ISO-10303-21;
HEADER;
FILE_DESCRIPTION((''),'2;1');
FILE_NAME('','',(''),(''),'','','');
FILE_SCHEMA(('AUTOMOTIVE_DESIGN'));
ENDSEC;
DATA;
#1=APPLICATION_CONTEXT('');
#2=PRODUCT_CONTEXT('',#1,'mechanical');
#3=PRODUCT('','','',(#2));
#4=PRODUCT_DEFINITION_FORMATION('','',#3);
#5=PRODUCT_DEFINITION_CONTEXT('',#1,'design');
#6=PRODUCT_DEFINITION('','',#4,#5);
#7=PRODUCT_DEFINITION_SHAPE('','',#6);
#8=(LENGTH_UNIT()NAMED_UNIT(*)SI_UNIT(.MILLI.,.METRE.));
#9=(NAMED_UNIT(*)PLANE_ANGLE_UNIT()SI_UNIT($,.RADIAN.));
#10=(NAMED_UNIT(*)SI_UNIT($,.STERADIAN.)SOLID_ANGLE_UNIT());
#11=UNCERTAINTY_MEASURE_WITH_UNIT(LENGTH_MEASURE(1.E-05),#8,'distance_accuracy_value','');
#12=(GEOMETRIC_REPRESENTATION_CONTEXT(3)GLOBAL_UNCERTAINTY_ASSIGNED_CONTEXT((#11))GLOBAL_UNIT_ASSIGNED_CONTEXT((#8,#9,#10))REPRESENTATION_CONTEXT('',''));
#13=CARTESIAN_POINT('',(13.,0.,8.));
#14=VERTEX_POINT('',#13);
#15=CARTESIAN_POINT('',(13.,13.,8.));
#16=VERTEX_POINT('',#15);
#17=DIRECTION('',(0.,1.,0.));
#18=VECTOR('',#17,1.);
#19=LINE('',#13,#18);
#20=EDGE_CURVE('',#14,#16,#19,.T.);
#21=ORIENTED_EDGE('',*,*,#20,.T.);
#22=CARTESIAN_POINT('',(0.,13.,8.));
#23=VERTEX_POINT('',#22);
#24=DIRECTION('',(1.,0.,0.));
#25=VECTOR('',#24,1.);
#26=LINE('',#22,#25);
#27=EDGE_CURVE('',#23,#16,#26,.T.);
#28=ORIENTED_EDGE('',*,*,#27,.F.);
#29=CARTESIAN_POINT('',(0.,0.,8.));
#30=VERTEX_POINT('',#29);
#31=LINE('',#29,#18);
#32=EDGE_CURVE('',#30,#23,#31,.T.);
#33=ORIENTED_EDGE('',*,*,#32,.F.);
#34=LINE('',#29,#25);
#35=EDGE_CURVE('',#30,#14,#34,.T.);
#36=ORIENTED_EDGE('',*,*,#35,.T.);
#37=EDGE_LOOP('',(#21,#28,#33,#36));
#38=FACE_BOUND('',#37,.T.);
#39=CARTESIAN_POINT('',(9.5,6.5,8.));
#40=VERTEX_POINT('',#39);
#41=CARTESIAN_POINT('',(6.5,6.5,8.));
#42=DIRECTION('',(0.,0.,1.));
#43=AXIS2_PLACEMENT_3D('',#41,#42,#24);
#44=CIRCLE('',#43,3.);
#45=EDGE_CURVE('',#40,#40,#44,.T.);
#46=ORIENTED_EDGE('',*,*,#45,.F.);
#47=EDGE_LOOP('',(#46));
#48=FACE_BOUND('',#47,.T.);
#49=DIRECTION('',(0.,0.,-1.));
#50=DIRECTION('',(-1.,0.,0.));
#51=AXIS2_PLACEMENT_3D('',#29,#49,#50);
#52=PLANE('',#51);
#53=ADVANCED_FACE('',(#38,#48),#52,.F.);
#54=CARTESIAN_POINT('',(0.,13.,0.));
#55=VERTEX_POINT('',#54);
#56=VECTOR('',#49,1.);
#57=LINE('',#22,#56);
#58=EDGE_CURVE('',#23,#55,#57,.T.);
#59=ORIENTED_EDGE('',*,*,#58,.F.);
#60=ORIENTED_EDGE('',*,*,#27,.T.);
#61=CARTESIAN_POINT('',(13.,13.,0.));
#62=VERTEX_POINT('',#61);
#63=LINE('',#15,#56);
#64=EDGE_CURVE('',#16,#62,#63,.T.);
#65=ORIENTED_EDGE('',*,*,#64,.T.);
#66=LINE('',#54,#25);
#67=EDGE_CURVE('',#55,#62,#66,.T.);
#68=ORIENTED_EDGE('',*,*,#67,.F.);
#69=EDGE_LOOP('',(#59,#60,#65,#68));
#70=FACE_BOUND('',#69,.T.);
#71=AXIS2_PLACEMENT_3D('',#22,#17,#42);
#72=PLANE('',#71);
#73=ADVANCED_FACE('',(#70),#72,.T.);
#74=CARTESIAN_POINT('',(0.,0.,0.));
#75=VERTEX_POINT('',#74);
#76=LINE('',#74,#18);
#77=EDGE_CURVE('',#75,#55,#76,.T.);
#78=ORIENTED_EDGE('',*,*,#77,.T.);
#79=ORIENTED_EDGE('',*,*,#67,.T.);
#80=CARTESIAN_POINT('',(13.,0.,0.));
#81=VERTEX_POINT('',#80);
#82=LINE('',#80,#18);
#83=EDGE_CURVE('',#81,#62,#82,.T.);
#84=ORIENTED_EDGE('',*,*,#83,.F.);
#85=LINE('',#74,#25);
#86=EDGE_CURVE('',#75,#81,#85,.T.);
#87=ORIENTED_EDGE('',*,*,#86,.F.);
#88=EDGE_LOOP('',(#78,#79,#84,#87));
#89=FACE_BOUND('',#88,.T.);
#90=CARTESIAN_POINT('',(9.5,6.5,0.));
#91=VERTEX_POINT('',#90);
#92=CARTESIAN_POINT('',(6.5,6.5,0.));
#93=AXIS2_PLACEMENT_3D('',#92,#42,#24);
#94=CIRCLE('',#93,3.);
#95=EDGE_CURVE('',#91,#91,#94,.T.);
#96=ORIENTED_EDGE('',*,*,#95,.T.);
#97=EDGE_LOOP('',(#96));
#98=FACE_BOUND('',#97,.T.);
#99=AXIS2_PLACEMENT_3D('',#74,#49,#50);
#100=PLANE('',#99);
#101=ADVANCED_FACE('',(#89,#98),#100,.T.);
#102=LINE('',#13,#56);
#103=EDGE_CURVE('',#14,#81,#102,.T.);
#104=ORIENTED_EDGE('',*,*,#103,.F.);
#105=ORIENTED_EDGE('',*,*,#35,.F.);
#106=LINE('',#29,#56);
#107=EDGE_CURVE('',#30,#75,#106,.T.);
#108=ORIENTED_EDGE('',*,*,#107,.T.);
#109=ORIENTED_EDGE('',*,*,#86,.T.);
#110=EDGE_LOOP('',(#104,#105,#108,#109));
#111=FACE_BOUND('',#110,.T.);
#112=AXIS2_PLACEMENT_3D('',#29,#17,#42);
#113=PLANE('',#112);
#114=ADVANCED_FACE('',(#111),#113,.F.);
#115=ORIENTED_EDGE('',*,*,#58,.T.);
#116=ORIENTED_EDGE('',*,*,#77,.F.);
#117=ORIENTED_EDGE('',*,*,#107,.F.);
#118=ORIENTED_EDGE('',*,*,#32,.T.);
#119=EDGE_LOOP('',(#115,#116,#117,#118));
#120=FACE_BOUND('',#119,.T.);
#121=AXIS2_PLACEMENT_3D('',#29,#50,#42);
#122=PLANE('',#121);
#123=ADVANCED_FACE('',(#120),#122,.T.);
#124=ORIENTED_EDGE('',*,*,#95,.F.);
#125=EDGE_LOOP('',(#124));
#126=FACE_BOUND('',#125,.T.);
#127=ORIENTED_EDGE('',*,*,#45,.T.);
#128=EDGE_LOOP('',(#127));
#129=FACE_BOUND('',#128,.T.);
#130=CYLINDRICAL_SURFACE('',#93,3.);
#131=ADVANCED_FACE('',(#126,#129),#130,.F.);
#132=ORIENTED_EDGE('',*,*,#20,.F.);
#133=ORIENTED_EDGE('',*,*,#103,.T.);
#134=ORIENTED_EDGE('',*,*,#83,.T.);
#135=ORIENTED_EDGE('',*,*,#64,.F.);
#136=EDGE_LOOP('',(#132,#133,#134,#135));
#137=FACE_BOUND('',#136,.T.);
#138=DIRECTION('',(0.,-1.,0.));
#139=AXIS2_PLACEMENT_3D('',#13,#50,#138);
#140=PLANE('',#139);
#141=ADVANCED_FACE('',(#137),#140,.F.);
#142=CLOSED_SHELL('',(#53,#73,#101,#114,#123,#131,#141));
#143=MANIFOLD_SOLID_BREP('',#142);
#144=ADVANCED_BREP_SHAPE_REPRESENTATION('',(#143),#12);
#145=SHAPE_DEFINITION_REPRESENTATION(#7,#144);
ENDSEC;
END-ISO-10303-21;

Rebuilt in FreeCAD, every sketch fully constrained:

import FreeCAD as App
import Part
import Sketcher

V = App.Vector

doc = App.newDocument("Part")
body = doc.addObject("PartDesign::Body", "Body")

# Sketch on XY plane
sketch1 = body.newObject("Sketcher::SketchObject", "Sketch")
sketch1.AttachmentSupport = (doc.getObject("XY_Plane"), [""])
sketch1.MapMode = "FlatFace"
sketch1.addGeometry([
    Part.LineSegment(V(0, 13, 0), V(0, 0, 0)),
    Part.LineSegment(V(0, 0, 0), V(13, 0, 0)),
    Part.LineSegment(V(13, 0, 0), V(13, 13, 0)),
    Part.LineSegment(V(13, 13, 0), V(0, 13, 0)),
], False)
sketch1.addConstraint([
    Sketcher.Constraint("Coincident", 0, 2, 1, 1),
    Sketcher.Constraint("Coincident", 1, 2, 2, 1),
    Sketcher.Constraint("Coincident", 2, 2, 3, 1),
    Sketcher.Constraint("Coincident", 3, 2, 0, 1),
    Sketcher.Constraint("Vertical", 0),
    Sketcher.Constraint("Horizontal", 1),
    Sketcher.Constraint("Vertical", 2),
    Sketcher.Constraint("Horizontal", 3),
    Sketcher.Constraint("Coincident", 0, 2, -1, 1),
    Sketcher.Constraint("Equal", 3, 0),
    Sketcher.Constraint("DistanceX", 1, 1, 1, 2, 13.0),
])
pad1 = body.newObject("PartDesign::Pad", "Pad")
pad1.Profile = sketch1
pad1.Length = 8

# Sketch on XY plane
sketch2 = body.newObject("Sketcher::SketchObject", "Sketch001")
sketch2.AttachmentSupport = (doc.getObject("XY_Plane"), [""])
sketch2.MapMode = "FlatFace"
sketch2.AttachmentOffset = App.Placement(V(0, 0, 8), App.Rotation())
sketch2.addGeometry(Part.Circle(V(6.5, 6.5, 0), V(0, 0, 1), 3), False)
sketch2.addConstraint([
    Sketcher.Constraint("Diameter", 0, 6.0),
    Sketcher.Constraint("DistanceX", -1, 1, 0, 3, 6.5),
    Sketcher.Constraint("DistanceY", -1, 1, 0, 3, 6.5),
])
pocket1 = body.newObject("PartDesign::Pocket", "Pocket")
pocket1.Profile = sketch2
pocket1.Length = 8

doc.recompute()
